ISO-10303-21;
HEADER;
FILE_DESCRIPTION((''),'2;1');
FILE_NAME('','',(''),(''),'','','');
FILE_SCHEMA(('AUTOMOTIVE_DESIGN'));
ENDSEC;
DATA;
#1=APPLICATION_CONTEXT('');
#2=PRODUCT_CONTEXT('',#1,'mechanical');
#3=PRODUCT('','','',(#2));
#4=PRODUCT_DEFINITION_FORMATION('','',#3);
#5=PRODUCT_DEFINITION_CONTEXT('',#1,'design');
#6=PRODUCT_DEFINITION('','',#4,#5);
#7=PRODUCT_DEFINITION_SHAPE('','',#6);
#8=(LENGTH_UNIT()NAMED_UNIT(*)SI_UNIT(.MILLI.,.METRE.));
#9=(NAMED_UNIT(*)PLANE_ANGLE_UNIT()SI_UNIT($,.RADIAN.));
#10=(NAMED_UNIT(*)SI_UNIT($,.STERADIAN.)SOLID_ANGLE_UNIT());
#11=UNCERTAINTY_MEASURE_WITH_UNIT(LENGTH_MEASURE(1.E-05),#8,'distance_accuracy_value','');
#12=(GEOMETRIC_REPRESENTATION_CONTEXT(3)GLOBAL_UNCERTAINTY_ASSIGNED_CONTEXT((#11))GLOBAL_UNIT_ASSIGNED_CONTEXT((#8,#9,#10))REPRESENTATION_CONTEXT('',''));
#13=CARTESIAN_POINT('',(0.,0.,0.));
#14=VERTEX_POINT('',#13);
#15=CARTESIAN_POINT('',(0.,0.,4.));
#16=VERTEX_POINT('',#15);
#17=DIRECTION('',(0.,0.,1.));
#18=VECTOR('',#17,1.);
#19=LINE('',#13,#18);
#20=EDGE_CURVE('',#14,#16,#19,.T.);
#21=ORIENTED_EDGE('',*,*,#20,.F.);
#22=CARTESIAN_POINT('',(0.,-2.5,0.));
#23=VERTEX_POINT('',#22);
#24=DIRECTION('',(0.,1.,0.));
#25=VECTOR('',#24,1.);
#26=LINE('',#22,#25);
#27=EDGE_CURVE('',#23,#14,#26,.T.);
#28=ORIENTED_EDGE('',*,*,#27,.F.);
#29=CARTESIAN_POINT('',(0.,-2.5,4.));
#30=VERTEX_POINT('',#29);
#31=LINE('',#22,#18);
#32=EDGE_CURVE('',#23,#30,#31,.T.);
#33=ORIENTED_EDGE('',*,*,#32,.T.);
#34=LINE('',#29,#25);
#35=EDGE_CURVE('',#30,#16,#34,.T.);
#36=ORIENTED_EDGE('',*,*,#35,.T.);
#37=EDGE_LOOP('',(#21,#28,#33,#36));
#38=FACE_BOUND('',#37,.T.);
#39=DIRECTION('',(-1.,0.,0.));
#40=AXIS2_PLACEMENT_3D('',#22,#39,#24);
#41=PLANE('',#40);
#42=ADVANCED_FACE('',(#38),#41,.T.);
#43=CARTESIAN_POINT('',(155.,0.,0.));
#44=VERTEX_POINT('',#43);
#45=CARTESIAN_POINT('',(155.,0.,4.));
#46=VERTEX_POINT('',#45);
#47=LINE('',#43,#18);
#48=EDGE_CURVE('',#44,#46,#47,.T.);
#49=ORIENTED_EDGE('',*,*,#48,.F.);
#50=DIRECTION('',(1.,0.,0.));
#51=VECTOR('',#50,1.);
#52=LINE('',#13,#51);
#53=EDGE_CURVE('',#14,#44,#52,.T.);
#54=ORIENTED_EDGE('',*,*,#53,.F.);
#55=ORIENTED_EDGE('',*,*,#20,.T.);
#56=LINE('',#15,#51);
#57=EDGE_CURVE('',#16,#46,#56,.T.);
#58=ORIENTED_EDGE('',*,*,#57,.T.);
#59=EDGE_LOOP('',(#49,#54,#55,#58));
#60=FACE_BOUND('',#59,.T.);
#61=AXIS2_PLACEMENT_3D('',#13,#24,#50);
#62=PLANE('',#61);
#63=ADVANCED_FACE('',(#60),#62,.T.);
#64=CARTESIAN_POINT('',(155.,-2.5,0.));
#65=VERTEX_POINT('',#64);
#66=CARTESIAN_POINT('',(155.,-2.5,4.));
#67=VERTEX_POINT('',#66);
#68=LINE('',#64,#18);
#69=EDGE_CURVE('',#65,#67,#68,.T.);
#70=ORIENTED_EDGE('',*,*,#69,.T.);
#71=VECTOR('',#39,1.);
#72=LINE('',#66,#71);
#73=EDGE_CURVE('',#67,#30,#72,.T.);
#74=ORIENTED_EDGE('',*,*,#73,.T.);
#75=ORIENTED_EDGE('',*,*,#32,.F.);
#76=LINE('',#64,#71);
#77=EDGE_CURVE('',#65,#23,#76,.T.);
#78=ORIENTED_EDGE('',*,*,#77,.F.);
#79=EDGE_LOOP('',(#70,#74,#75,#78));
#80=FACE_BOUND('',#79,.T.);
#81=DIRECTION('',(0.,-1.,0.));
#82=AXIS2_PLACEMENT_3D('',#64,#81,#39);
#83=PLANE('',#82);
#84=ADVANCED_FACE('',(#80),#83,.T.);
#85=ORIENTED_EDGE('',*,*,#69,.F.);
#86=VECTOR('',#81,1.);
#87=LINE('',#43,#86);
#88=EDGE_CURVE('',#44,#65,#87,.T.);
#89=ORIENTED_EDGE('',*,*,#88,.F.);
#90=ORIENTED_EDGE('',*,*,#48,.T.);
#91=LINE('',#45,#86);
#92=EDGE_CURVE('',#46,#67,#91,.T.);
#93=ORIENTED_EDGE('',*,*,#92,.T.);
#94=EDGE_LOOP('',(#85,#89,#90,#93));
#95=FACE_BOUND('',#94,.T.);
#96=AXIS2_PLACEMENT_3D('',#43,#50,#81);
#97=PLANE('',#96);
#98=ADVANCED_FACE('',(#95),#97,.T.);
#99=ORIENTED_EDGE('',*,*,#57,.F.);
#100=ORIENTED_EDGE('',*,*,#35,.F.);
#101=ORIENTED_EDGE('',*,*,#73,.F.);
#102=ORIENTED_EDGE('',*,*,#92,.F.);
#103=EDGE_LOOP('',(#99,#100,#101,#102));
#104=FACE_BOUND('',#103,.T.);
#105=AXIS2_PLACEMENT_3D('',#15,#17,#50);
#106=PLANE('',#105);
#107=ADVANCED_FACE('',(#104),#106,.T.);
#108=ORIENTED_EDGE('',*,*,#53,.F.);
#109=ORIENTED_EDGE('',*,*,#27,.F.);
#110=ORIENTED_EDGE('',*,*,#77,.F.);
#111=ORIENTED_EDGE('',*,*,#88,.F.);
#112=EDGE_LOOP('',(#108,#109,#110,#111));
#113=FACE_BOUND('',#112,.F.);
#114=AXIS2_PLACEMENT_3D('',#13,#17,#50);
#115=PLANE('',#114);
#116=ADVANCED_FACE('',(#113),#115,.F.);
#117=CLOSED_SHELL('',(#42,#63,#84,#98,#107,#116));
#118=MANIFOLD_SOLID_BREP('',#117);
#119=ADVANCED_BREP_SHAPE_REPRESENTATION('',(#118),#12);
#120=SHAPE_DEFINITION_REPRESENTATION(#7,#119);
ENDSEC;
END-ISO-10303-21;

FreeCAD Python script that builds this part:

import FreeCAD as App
import Part
import Sketcher
from FreeCAD import Vector

doc = App.newDocument("Part")
body = doc.addObject("PartDesign::Body", "Body")

# Sketch on XY plane
sketch1 = doc.addObject("Sketcher::SketchObject", "Sketch")
body.addObject(sketch1)
sketch1.AttachmentSupport = (doc.XY_Plane, [""])
sketch1.MapMode = "FlatFace"
sketch1.addGeometry(Part.LineSegment(Vector(155, 0, 0), Vector(0, 0, 0)), False)
sketch1.addGeometry(Part.LineSegment(Vector(0, 0, 0), Vector(0, -2.5, 0)), False)
sketch1.addGeometry(Part.LineSegment(Vector(0, -2.5, 0), Vector(155, -2.5, 0)), False)
sketch1.addGeometry(Part.LineSegment(Vector(155, -2.5, 0), Vector(155, 0, 0)), False)
sketch1.addConstraint(Sketcher.Constraint("Coincident", 0, 2, 1, 1))
sketch1.addConstraint(Sketcher.Constraint("Coincident", 1, 2, 2, 1))
sketch1.addConstraint(Sketcher.Constraint("Coincident", 2, 2, 3, 1))
sketch1.addConstraint(Sketcher.Constraint("Coincident", 3, 2, 0, 1))
sketch1.addConstraint(Sketcher.Constraint("Horizontal", 0))
sketch1.addConstraint(Sketcher.Constraint("Vertical", 1))
sketch1.addConstraint(Sketcher.Constraint("Horizontal", 2))
sketch1.addConstraint(Sketcher.Constraint("Vertical", 3))
sketch1.addConstraint(Sketcher.Constraint("Coincident", 0, 2, -1, 1))
sketch1.addConstraint(Sketcher.Constraint("DistanceX", 0, 2, 0, 1, 155.0))
sketch1.addConstraint(Sketcher.Constraint("DistanceY", 1, 2, 1, 1, 2.5))
pad1 = doc.addObject("PartDesign::Pad", "Pad")
body.addObject(pad1)
pad1.Profile = sketch1
pad1.Length = 4

doc.recompute()
